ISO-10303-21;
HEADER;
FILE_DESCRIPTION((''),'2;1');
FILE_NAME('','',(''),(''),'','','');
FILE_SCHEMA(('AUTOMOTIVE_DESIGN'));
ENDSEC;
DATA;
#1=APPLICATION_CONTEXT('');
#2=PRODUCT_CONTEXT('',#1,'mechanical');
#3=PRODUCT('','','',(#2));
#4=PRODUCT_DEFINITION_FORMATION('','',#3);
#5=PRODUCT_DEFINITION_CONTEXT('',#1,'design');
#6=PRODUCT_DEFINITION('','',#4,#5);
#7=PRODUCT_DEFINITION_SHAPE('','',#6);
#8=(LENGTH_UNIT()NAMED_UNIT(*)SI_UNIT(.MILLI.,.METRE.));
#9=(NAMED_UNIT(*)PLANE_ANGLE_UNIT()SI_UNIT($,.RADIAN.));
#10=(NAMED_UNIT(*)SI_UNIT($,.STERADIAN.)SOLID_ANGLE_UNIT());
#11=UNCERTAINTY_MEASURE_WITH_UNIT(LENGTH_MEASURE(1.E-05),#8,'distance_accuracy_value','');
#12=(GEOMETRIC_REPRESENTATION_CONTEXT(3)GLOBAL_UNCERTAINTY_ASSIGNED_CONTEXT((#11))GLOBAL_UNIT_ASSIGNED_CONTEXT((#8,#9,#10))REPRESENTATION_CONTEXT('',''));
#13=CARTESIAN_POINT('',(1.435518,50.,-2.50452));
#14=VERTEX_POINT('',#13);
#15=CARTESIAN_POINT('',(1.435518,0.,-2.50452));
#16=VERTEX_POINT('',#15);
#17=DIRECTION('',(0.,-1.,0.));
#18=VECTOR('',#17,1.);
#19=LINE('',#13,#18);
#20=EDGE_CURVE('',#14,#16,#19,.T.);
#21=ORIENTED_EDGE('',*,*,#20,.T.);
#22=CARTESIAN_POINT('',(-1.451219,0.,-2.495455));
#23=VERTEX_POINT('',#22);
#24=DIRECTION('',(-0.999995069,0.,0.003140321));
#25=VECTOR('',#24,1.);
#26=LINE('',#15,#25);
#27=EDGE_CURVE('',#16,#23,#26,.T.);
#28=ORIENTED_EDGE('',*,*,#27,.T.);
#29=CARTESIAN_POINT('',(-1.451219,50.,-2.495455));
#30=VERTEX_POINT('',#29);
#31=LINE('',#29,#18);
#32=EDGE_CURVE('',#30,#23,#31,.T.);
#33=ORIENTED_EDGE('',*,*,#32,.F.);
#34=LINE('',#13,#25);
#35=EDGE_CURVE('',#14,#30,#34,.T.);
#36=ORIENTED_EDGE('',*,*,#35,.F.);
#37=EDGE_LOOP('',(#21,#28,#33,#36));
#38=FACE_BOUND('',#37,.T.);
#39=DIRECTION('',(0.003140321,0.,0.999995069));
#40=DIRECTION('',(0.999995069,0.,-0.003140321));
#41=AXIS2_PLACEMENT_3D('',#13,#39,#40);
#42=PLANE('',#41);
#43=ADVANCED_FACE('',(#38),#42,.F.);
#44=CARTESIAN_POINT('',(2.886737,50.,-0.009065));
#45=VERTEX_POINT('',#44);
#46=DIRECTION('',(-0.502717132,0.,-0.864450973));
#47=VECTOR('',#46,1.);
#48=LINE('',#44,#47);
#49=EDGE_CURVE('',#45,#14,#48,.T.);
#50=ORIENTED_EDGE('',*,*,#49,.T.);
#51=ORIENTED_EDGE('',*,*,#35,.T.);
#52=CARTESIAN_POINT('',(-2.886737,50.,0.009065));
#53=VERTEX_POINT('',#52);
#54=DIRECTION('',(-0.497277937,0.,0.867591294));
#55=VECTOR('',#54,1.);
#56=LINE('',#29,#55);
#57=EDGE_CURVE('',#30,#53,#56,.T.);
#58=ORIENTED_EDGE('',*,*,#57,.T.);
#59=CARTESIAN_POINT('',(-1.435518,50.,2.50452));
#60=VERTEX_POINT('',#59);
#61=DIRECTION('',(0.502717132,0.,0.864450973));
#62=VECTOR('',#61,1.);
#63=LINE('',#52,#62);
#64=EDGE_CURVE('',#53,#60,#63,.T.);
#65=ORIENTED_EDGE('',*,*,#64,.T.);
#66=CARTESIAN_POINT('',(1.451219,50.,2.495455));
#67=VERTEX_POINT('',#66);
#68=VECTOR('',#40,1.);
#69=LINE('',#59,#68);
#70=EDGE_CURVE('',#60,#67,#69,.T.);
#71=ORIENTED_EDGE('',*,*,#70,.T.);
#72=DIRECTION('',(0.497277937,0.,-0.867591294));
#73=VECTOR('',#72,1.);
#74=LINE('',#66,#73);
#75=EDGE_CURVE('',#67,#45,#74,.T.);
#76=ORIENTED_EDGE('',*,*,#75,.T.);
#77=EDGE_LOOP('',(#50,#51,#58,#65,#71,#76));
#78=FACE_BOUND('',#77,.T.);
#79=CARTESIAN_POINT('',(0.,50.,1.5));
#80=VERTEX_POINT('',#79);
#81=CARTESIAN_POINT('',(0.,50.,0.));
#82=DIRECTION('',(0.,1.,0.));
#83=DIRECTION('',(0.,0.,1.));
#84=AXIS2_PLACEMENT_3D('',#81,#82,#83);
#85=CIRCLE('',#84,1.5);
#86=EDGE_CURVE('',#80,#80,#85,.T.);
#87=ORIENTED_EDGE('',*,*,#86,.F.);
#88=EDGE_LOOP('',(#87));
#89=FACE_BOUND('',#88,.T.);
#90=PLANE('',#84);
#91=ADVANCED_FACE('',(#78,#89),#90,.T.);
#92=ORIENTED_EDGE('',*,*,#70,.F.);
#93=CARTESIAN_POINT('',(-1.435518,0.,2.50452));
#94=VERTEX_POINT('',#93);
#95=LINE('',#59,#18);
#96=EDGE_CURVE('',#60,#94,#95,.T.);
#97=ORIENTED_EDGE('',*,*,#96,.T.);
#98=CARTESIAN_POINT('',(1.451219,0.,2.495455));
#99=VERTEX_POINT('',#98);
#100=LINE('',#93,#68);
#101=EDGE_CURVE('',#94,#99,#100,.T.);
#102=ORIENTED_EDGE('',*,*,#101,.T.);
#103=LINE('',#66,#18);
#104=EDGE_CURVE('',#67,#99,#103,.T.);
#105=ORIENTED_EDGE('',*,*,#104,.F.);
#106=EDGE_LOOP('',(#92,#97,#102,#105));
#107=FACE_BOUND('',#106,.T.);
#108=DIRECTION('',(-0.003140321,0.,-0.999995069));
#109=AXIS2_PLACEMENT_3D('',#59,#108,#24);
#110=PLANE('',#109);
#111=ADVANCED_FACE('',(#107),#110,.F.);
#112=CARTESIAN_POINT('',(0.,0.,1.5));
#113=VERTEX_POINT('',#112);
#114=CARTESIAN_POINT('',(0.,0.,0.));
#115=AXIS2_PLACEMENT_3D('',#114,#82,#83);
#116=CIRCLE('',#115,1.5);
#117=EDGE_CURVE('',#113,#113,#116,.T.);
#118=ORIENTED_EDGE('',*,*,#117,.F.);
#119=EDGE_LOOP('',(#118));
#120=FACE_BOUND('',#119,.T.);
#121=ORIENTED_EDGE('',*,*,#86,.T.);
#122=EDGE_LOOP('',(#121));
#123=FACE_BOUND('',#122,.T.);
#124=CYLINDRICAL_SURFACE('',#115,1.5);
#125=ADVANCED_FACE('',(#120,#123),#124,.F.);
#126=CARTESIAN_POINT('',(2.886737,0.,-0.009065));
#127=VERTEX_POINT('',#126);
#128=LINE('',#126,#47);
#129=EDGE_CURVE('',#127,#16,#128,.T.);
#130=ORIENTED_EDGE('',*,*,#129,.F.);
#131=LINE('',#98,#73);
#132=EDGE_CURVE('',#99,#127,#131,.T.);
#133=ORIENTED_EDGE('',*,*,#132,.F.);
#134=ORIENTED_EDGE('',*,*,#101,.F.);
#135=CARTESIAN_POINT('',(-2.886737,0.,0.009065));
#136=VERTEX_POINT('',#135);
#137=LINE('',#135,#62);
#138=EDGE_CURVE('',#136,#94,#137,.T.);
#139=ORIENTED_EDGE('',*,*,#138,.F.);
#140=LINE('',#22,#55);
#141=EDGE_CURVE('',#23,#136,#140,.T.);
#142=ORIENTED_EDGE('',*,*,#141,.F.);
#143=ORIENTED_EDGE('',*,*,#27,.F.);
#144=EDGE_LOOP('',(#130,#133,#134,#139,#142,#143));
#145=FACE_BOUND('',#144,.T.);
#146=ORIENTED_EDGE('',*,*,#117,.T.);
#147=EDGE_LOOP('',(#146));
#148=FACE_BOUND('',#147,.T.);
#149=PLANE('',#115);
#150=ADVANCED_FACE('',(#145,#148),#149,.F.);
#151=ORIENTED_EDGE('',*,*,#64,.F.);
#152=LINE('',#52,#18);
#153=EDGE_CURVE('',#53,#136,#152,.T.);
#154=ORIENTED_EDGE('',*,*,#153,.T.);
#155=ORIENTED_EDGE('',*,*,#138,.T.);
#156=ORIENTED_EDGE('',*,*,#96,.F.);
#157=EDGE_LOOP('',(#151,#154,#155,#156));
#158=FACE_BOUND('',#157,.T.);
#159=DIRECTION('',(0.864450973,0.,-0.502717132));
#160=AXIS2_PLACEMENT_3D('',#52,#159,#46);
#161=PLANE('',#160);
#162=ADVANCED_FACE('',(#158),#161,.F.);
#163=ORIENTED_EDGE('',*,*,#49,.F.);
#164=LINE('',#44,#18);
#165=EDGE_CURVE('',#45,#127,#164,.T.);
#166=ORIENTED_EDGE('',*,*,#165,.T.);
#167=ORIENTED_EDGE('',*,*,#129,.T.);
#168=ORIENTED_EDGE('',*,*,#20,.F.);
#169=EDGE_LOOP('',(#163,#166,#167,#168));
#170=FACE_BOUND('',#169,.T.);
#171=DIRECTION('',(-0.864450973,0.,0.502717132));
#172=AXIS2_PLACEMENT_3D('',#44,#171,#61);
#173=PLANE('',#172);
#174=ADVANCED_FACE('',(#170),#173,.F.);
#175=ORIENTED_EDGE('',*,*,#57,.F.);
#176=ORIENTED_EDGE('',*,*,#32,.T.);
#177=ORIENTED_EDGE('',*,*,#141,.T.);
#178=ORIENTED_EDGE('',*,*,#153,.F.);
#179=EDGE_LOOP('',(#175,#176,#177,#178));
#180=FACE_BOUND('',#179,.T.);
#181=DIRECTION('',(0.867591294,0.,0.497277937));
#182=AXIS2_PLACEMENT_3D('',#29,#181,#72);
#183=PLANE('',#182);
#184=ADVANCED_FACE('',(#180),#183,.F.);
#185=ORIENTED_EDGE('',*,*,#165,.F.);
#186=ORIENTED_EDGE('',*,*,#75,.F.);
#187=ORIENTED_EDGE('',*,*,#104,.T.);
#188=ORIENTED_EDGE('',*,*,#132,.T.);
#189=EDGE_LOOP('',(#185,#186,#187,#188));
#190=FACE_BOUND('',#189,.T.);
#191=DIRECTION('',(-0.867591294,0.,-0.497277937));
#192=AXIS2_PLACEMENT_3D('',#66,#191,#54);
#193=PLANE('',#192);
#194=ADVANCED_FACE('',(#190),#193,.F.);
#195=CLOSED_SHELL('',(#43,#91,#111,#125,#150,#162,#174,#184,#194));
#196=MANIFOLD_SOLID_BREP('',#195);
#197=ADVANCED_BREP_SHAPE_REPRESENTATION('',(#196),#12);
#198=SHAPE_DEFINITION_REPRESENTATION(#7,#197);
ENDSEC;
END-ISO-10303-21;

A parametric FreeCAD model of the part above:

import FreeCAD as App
import Part
import Sketcher
Q = App.Units.Quantity


def add_polygon(sketch, points):
    """Adds a closed chain of lines whose ends are joined by coincident constraints."""
    first, n = sketch.GeometryCount, len(points)
    for a, b in zip(points, points[1:] + points[:1]):
        sketch.addGeometry(Part.LineSegment(App.Vector(*a, 0), App.Vector(*b, 0)), False)
    for i in range(n):
        sketch.addConstraint(Sketcher.Constraint("Coincident", first + i, 2, first + (i + 1) % n, 1))

doc = App.newDocument("Part")
params = doc.addObject("Spreadsheet::Sheet", "Params")
for row, (alias, value) in enumerate([
    ("pad1_length", "50 mm"),
    ("sketch2_diameter", "3 mm"),
    ("pocket1_length", "50 mm"),
], start=1):
    params.set(f"A{row}", alias)
    params.set(f"B{row}", "=" + value)
    params.setAlias(f"B{row}", alias)

body = doc.addObject("PartDesign::Body", "Body")

sketch1 = doc.addObject("Sketcher::SketchObject", "Sketch")
body.addObject(sketch1)
sketch1.AttachmentSupport = (doc.XZ_Plane, [""])
sketch1.MapMode = "FlatFace"
add_polygon(sketch1, [(1.4, -2.5), (-1.5, -2.5), (-2.9, 0), (-1.4, 2.5), (1.5, 2.5), (2.9, 0)])
sketch1.addConstraint(Sketcher.Constraint("Symmetric", 0, 2, 3, 2, -1, 1))
sketch1.addConstraint(Sketcher.Constraint("Symmetric", 1, 2, 4, 2, -1, 1))
sketch1.addConstraint(Sketcher.Constraint("Symmetric", 2, 2, 5, 2, -1, 1))
sketch1.addConstraint(Sketcher.Constraint("Equal", 0, 1))
sketch1.addConstraint(Sketcher.Constraint("Equal", 1, 2))
sketch1.addConstraint(Sketcher.Constraint("DistanceX", 0, 2, 2, 2, Q("0.015702 mm")))
sketch1.addConstraint(Sketcher.Constraint("Distance", 0, Q("2.886751 mm")))
sketch1.addConstraint(Sketcher.Constraint("DistanceY", -1, 1, 2, 2, Q("2.50452 mm")))
sketch1.addConstraint(Sketcher.Constraint("DistanceY", 0, 2, 1, 2, Q("2.50452 mm")))
pad1 = doc.addObject("PartDesign::Pad", "Pad")
body.addObject(pad1)
pad1.Profile = sketch1
pad1.setExpression("Length", "Params.pad1_length")
pad1.Reversed = True

sketch2 = doc.addObject("Sketcher::SketchObject", "Sketch001")
body.addObject(sketch2)
sketch2.AttachmentSupport = (doc.XZ_Plane, [""])
sketch2.MapMode = "FlatFace"
sketch2.AttachmentOffset = App.Placement(App.Vector(0, 0, -50), App.Rotation())
sketch2.addGeometry(Part.Circle(App.Vector(0, 0, 0), App.Vector(0, 0, 1), 1.5), False)
sketch2.addConstraint(Sketcher.Constraint("Coincident", 0, 3, -1, 1))
sketch2.addConstraint(Sketcher.Constraint("Diameter", 0, Q("3 mm")))
sketch2.setExpression("Constraints[1]", "Params.sketch2_diameter")
pocket1 = doc.addObject("PartDesign::Pocket", "Pocket")
body.addObject(pocket1)
pocket1.Profile = sketch2
pocket1.setExpression("Length", "Params.pocket1_length")
pocket1.Reversed = True

doc.recompute()
